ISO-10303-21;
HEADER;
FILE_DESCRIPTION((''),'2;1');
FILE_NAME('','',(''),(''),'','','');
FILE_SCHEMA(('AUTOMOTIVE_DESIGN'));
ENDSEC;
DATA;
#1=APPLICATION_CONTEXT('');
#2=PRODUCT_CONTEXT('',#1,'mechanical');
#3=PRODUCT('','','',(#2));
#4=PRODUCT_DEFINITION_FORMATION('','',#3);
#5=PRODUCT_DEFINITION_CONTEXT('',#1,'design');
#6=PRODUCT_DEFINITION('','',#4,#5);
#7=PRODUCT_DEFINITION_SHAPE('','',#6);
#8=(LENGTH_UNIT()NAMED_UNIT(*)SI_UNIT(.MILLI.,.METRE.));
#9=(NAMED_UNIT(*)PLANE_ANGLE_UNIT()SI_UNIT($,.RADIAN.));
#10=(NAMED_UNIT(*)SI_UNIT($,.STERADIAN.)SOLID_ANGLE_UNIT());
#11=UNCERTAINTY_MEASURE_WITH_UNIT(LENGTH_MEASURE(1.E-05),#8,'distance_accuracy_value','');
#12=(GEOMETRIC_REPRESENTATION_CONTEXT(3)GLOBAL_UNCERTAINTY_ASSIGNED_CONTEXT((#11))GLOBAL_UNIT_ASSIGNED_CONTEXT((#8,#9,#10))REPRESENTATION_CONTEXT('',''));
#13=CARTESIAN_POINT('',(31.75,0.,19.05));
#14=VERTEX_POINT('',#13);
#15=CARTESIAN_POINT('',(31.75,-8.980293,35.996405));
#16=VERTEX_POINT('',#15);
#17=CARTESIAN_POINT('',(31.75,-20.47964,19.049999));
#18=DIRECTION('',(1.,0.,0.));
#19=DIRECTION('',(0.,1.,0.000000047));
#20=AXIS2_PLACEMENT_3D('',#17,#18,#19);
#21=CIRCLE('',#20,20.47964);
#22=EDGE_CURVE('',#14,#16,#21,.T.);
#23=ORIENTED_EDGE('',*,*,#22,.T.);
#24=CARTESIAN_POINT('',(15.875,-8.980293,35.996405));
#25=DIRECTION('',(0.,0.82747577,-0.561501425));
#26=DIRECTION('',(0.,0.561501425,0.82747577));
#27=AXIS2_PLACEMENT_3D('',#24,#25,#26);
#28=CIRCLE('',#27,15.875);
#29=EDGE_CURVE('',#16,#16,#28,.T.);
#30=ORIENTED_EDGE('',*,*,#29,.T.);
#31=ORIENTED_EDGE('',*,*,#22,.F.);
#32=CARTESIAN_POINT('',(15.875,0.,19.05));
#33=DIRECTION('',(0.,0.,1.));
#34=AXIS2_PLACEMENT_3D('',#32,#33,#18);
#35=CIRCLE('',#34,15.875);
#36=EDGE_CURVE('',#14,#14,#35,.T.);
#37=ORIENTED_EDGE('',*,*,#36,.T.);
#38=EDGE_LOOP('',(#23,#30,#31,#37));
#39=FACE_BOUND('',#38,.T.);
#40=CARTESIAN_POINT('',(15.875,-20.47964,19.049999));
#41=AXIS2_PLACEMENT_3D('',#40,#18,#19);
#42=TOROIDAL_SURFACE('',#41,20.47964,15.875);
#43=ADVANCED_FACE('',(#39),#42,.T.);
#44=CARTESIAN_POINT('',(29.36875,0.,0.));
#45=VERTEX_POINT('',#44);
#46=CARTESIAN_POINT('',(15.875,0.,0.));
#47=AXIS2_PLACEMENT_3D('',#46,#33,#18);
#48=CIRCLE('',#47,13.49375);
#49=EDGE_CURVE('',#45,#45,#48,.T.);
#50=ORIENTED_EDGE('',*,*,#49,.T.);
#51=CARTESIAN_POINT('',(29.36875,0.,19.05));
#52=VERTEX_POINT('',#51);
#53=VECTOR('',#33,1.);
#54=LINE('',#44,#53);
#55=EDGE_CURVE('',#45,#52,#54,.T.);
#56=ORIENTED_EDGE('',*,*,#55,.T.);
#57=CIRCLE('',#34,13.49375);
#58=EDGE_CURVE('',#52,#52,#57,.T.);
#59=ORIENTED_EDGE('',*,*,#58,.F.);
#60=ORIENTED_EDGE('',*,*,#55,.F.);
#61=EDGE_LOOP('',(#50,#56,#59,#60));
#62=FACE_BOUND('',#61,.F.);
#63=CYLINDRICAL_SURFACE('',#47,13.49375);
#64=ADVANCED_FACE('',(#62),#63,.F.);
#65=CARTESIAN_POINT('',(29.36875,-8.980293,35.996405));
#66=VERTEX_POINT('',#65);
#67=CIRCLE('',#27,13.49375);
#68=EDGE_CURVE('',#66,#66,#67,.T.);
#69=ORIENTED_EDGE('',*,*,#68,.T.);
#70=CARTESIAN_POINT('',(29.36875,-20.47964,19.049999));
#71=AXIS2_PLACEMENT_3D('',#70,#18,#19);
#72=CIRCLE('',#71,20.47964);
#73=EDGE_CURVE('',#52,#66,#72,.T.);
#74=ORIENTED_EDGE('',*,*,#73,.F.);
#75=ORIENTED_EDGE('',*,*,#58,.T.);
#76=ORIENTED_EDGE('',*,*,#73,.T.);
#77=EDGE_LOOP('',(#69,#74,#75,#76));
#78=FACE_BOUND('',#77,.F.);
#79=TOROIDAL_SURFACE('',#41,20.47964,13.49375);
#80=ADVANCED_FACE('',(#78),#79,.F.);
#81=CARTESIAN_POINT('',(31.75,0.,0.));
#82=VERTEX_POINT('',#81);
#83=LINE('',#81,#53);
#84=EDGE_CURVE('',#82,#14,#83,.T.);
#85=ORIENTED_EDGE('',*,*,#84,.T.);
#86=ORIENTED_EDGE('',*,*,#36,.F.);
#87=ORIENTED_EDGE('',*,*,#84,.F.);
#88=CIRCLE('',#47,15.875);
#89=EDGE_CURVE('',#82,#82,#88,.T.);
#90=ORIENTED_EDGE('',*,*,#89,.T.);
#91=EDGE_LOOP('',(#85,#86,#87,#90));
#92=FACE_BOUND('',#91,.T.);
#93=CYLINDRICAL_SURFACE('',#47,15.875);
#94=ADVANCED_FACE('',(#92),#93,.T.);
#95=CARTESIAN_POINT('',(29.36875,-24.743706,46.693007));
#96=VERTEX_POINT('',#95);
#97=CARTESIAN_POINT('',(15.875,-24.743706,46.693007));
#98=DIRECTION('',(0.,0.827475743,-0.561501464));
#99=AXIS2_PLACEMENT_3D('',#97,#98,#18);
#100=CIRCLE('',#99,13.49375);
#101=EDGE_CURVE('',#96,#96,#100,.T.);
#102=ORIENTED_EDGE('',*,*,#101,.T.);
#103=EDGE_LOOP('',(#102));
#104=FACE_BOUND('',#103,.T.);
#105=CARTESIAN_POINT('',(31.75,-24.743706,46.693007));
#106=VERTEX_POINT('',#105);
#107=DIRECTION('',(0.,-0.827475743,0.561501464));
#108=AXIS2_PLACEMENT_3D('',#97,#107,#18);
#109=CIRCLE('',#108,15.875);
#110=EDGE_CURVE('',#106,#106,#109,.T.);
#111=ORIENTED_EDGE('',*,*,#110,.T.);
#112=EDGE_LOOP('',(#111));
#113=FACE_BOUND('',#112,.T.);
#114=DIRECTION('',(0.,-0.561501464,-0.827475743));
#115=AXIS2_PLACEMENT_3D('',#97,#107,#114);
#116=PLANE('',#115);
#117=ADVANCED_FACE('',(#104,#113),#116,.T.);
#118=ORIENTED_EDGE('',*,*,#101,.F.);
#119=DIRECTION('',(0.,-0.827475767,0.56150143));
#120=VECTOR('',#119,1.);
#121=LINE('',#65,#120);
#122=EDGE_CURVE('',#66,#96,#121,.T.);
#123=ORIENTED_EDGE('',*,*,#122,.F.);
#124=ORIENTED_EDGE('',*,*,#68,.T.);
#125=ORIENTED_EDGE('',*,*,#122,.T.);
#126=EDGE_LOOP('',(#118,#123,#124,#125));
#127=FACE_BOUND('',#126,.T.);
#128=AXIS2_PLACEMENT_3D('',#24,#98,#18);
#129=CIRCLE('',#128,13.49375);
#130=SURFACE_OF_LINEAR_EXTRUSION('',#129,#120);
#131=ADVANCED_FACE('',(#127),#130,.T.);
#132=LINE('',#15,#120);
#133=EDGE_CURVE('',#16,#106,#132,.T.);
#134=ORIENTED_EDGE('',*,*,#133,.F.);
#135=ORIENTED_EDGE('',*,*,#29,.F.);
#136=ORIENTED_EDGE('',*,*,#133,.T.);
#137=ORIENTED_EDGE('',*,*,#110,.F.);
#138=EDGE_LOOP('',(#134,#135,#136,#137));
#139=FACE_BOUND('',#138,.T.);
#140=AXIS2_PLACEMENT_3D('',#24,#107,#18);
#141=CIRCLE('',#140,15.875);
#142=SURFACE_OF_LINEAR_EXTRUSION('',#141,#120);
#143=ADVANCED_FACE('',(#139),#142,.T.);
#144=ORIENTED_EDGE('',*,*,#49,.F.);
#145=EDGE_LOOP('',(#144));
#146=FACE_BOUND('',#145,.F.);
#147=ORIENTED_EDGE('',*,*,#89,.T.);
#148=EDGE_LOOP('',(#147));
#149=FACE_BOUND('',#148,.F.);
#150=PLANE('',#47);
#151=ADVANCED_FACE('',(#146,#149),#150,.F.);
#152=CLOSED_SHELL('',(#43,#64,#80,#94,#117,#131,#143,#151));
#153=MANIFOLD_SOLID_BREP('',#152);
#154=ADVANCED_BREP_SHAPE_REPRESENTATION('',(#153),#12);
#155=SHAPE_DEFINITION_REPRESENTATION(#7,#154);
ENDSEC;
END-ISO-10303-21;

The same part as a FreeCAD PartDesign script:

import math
import FreeCAD as App
import Part
import Sketcher

V = App.Vector
Q = App.Units.Quantity

doc = App.newDocument("Part")
body = doc.addObject("PartDesign::Body", "Body")

sketch1 = body.newObject("Sketcher::SketchObject", "Sketch")
sketch1.AttachmentSupport = (doc.getObject("XY_Plane"), [""])
sketch1.MapMode = "FlatFace"
sketch1.addGeometry(Part.Circle(V(16, 0, 0), V(0, 0, 1), 16), False)
sketch1.addGeometry(Part.Circle(V(16, 0, 0), V(0, 0, 1), 13), False)
sketch1.addConstraint(Sketcher.Constraint("Coincident", 1, 3, 0, 3))
sketch1.addConstraint(Sketcher.Constraint("PointOnObject", 0, 3, -1))
sketch1.addConstraint(Sketcher.Constraint("Diameter", 0, Q("1.25 in")))
sketch1.addConstraint(Sketcher.Constraint("Diameter", 1, Q("1.0625 in")))
sketch1.addConstraint(Sketcher.Constraint("DistanceX", -1, 1, 0, 3, Q("0.625 in")))

sketch2 = body.newObject("Sketcher::SketchObject", "Sketch001")
sketch2.AttachmentSupport = (doc.getObject("YZ_Plane"), [""])
sketch2.MapMode = "FlatFace"
sketch2.addGeometry(Part.LineSegment(V(0, 0, 0), V(0, 19, 0)), False)
sketch2.addGeometry(Part.ArcOfCircle(Part.Circle(V(-20, 19, 0), V(0, 0, 1), 20), math.radians(0), math.radians(56)), False)
sketch2.addGeometry(Part.LineSegment(V(-9, 36, 0), V(-25, 47, 0)), False)
sketch2.addConstraint(Sketcher.Constraint("Tangent", 0, 2, 1, 1))
sketch2.addConstraint(Sketcher.Constraint("Tangent", 1, 2, 2, 1))
sketch2.addConstraint(Sketcher.Constraint("Vertical", 0))
sketch2.addConstraint(Sketcher.Constraint("Coincident", 0, 1, -1, 1))
sketch2.addConstraint(Sketcher.Constraint("DistanceY", 0, 1, 0, 2, Q("0.75 in")))
sketch2.addConstraint(Sketcher.Constraint("Distance", 2, Q("0.75 in")))
sketch2.addConstraint(Sketcher.Constraint("Radius", 1, 20.47964))
sketch2.addConstraint(Sketcher.Constraint("DistanceY", 1, 2, 2, 2, 10.696602))
doc.recompute()

additivepipe = body.newObject("PartDesign::AdditivePipe", "AdditivePipe")
additivepipe.Profile = sketch1
additivepipe.Spine = (sketch2, ["Edge1", "Edge2", "Edge3"])

doc.recompute()
